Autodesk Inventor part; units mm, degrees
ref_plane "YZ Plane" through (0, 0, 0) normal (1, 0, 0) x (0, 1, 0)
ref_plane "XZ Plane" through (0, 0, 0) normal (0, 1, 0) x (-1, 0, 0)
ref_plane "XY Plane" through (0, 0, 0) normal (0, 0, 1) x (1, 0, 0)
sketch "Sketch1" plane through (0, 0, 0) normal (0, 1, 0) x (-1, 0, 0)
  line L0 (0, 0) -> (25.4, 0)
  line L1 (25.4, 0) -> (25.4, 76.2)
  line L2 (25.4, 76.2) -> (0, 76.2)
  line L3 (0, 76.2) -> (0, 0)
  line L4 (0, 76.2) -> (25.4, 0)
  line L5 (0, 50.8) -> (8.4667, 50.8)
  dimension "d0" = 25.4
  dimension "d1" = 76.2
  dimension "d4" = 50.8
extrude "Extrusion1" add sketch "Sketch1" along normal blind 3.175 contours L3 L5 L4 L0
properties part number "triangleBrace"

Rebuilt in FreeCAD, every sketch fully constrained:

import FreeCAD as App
import Part
import Sketcher
from FreeCAD import Vector
Q = App.Units.Quantity

doc = App.newDocument("Part")
body = doc.addObject("PartDesign::Body", "Body")

sketch1 = doc.addObject("Sketcher::SketchObject", "Sketch")
body.addObject(sketch1)
sketch1.AttachmentSupport = (doc.XZ_Plane, [""])
sketch1.MapMode = "FlatFace"
sketch1.addGeometry(Part.LineSegment(Vector(0, 50.8, 0), Vector(0, 0, 0)), False)
sketch1.addGeometry(Part.LineSegment(Vector(0, 0, 0), Vector(-25.4, 0, 0)), False)
sketch1.addGeometry(Part.LineSegment(Vector(-25.4, 0, 0), Vector(-8.46667, 50.79999, 0)), False)
sketch1.addGeometry(Part.LineSegment(Vector(-8.4667, 50.8, 0), Vector(0, 50.8, 0)), False)
sketch1.addConstraint(Sketcher.Constraint("Coincident", 0, 2, 1, 1))
sketch1.addConstraint(Sketcher.Constraint("Coincident", 1, 2, 2, 1))
sketch1.addConstraint(Sketcher.Constraint("Coincident", 2, 2, 3, 1))
sketch1.addConstraint(Sketcher.Constraint("Coincident", 3, 2, 0, 1))
sketch1.addConstraint(Sketcher.Constraint("Vertical", 0))
sketch1.addConstraint(Sketcher.Constraint("Horizontal", 1))
sketch1.addConstraint(Sketcher.Constraint("Horizontal", 3))
sketch1.addConstraint(Sketcher.Constraint("Coincident", 0, 2, -1, 1))
sketch1.addConstraint(Sketcher.Constraint("DistanceX", 1, 2, 1, 1, Q("1 in")))
sketch1.addConstraint(Sketcher.Constraint("DistanceY", 0, 2, 0, 1, Q("2 in")))
sketch1.addConstraint(Sketcher.Constraint("DistanceX", 3, 1, 3, 2, 8.4667))
pad1 = doc.addObject("PartDesign::Pad", "Pad")
body.addObject(pad1)
pad1.Profile = sketch1
pad1.Length = Q("0.125 in")
pad1.Reversed = True

doc.recompute()
